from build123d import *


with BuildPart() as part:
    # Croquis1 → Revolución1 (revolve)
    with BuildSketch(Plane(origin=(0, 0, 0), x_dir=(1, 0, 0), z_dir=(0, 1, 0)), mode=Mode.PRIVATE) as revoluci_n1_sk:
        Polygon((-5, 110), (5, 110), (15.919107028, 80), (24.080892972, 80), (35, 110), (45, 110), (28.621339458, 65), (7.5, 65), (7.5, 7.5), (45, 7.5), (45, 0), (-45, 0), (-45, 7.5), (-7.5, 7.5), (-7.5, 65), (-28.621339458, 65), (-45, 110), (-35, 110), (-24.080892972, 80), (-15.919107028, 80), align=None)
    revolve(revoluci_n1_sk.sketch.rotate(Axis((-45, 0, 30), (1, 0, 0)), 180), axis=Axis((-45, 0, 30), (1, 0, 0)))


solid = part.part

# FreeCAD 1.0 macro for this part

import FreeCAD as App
import Part
import Sketcher
Q = App.Units.Quantity


def add_polygon(sketch, points):
    """Adds a closed chain of lines whose ends are joined by coincident constraints."""
    first, n = sketch.GeometryCount, len(points)
    for a, b in zip(points, points[1:] + points[:1]):
        sketch.addGeometry(Part.LineSegment(App.Vector(*a, 0), App.Vector(*b, 0)), False)
    for i in range(n):
        sketch.addConstraint(Sketcher.Constraint("Coincident", first + i, 2, first + (i + 1) % n, 1))

doc = App.newDocument("Part")
body = doc.addObject("PartDesign::Body", "Body")

# Sketch on XZ plane
sketch1 = body.newObject("Sketcher::SketchObject", "Sketch")
sketch1.AttachmentSupport = (doc.getObject("XZ_Plane"), [""])
sketch1.MapMode = "FlatFace"
add_polygon(sketch1, [(5, -110), (-5, -110), (-16, -80), (-24, -80), (-35, -110), (-45, -110), (-29, -65), (-8, -65), (-8, -8), (-45, -8), (-45, 0), (45, 0), (45, -8), (8, -8), (8, -65), (29, -65), (45, -110), (35, -110), (24, -80), (16, -80)])  # lines 0-19
sketch1.addGeometry(Part.LineSegment(App.Vector(-45, 30, 0), App.Vector(45, 30, 0)), True)  # axis
sketch1.addConstraint([
    Sketcher.Constraint("Horizontal", 0),
    Sketcher.Constraint("Horizontal", 2),
    Sketcher.Constraint("Horizontal", 4),
    Sketcher.Constraint("Horizontal", 6),
    Sketcher.Constraint("Vertical", 7),
    Sketcher.Constraint("Horizontal", 8),
    Sketcher.Constraint("Vertical", 9),
    Sketcher.Constraint("Horizontal", 10),
    Sketcher.Constraint("Vertical", 11),
    Sketcher.Constraint("Horizontal", 12),
    Sketcher.Constraint("Vertical", 13),
    Sketcher.Constraint("Horizontal", 14),
    Sketcher.Constraint("Horizontal", 16),
    Sketcher.Constraint("Horizontal", 18),
    Sketcher.Constraint("Horizontal", 20),
    Sketcher.Constraint("Symmetric", 9, 2, 10, 2, -1, 1),
    Sketcher.Constraint("Symmetric", 7, 2, 12, 2, -2),
    Sketcher.Constraint("Symmetric", 5, 2, 14, 2, -2),
    Sketcher.Constraint("Symmetric", 4, 2, 15, 2, -2),
    Sketcher.Constraint("Symmetric", 2, 2, 17, 2, -2),
    Sketcher.Constraint("Parallel", 3, 5),
    Sketcher.Constraint("Parallel", 1, 15),
    Sketcher.Constraint("Parallel", 15, 17),
    Sketcher.Constraint("Parallel", 5, 19),
    Sketcher.Constraint("Horizontal", 0, 2, 3, 2),
    Sketcher.Constraint("Vertical", 4, 2, 8, 2),
    Sketcher.Constraint("Vertical", 9, 2, 20, 1),
    Sketcher.Constraint("Vertical", 15, 2, 20, 2),
    Sketcher.Constraint("Equal", 0, 4),
    Sketcher.Constraint("Equal", 2, 18),
    Sketcher.Constraint("DistanceX", 0, 2, 0, 1, 10.0),
    Sketcher.Constraint("DistanceX", 10, 1, 10, 2, 90.0),
    Sketcher.Constraint("Angle", 1, Q("110 deg")),
    Sketcher.Constraint("DistanceX", 8, 2, 8, 1, 37.5),
    Sketcher.Constraint("DistanceY", 7, 1, 7, 2, 57.5),
    Sketcher.Constraint("DistanceY", 9, 1, 9, 2, 7.5),
    Sketcher.Constraint("DistanceY", 0, 2, -1, 1, 110.0),
    Sketcher.Constraint("DistanceY", 1, 2, -1, 1, 80.0),
    Sketcher.Constraint("DistanceY", -1, 1, 20, 1, 30.0),
])
revolution = body.newObject("PartDesign::Revolution", "Revolution")
revolution.Profile = sketch1
revolution.ReferenceAxis = (sketch1, ["Axis0"])
revolution.Angle = 360

doc.recompute()
